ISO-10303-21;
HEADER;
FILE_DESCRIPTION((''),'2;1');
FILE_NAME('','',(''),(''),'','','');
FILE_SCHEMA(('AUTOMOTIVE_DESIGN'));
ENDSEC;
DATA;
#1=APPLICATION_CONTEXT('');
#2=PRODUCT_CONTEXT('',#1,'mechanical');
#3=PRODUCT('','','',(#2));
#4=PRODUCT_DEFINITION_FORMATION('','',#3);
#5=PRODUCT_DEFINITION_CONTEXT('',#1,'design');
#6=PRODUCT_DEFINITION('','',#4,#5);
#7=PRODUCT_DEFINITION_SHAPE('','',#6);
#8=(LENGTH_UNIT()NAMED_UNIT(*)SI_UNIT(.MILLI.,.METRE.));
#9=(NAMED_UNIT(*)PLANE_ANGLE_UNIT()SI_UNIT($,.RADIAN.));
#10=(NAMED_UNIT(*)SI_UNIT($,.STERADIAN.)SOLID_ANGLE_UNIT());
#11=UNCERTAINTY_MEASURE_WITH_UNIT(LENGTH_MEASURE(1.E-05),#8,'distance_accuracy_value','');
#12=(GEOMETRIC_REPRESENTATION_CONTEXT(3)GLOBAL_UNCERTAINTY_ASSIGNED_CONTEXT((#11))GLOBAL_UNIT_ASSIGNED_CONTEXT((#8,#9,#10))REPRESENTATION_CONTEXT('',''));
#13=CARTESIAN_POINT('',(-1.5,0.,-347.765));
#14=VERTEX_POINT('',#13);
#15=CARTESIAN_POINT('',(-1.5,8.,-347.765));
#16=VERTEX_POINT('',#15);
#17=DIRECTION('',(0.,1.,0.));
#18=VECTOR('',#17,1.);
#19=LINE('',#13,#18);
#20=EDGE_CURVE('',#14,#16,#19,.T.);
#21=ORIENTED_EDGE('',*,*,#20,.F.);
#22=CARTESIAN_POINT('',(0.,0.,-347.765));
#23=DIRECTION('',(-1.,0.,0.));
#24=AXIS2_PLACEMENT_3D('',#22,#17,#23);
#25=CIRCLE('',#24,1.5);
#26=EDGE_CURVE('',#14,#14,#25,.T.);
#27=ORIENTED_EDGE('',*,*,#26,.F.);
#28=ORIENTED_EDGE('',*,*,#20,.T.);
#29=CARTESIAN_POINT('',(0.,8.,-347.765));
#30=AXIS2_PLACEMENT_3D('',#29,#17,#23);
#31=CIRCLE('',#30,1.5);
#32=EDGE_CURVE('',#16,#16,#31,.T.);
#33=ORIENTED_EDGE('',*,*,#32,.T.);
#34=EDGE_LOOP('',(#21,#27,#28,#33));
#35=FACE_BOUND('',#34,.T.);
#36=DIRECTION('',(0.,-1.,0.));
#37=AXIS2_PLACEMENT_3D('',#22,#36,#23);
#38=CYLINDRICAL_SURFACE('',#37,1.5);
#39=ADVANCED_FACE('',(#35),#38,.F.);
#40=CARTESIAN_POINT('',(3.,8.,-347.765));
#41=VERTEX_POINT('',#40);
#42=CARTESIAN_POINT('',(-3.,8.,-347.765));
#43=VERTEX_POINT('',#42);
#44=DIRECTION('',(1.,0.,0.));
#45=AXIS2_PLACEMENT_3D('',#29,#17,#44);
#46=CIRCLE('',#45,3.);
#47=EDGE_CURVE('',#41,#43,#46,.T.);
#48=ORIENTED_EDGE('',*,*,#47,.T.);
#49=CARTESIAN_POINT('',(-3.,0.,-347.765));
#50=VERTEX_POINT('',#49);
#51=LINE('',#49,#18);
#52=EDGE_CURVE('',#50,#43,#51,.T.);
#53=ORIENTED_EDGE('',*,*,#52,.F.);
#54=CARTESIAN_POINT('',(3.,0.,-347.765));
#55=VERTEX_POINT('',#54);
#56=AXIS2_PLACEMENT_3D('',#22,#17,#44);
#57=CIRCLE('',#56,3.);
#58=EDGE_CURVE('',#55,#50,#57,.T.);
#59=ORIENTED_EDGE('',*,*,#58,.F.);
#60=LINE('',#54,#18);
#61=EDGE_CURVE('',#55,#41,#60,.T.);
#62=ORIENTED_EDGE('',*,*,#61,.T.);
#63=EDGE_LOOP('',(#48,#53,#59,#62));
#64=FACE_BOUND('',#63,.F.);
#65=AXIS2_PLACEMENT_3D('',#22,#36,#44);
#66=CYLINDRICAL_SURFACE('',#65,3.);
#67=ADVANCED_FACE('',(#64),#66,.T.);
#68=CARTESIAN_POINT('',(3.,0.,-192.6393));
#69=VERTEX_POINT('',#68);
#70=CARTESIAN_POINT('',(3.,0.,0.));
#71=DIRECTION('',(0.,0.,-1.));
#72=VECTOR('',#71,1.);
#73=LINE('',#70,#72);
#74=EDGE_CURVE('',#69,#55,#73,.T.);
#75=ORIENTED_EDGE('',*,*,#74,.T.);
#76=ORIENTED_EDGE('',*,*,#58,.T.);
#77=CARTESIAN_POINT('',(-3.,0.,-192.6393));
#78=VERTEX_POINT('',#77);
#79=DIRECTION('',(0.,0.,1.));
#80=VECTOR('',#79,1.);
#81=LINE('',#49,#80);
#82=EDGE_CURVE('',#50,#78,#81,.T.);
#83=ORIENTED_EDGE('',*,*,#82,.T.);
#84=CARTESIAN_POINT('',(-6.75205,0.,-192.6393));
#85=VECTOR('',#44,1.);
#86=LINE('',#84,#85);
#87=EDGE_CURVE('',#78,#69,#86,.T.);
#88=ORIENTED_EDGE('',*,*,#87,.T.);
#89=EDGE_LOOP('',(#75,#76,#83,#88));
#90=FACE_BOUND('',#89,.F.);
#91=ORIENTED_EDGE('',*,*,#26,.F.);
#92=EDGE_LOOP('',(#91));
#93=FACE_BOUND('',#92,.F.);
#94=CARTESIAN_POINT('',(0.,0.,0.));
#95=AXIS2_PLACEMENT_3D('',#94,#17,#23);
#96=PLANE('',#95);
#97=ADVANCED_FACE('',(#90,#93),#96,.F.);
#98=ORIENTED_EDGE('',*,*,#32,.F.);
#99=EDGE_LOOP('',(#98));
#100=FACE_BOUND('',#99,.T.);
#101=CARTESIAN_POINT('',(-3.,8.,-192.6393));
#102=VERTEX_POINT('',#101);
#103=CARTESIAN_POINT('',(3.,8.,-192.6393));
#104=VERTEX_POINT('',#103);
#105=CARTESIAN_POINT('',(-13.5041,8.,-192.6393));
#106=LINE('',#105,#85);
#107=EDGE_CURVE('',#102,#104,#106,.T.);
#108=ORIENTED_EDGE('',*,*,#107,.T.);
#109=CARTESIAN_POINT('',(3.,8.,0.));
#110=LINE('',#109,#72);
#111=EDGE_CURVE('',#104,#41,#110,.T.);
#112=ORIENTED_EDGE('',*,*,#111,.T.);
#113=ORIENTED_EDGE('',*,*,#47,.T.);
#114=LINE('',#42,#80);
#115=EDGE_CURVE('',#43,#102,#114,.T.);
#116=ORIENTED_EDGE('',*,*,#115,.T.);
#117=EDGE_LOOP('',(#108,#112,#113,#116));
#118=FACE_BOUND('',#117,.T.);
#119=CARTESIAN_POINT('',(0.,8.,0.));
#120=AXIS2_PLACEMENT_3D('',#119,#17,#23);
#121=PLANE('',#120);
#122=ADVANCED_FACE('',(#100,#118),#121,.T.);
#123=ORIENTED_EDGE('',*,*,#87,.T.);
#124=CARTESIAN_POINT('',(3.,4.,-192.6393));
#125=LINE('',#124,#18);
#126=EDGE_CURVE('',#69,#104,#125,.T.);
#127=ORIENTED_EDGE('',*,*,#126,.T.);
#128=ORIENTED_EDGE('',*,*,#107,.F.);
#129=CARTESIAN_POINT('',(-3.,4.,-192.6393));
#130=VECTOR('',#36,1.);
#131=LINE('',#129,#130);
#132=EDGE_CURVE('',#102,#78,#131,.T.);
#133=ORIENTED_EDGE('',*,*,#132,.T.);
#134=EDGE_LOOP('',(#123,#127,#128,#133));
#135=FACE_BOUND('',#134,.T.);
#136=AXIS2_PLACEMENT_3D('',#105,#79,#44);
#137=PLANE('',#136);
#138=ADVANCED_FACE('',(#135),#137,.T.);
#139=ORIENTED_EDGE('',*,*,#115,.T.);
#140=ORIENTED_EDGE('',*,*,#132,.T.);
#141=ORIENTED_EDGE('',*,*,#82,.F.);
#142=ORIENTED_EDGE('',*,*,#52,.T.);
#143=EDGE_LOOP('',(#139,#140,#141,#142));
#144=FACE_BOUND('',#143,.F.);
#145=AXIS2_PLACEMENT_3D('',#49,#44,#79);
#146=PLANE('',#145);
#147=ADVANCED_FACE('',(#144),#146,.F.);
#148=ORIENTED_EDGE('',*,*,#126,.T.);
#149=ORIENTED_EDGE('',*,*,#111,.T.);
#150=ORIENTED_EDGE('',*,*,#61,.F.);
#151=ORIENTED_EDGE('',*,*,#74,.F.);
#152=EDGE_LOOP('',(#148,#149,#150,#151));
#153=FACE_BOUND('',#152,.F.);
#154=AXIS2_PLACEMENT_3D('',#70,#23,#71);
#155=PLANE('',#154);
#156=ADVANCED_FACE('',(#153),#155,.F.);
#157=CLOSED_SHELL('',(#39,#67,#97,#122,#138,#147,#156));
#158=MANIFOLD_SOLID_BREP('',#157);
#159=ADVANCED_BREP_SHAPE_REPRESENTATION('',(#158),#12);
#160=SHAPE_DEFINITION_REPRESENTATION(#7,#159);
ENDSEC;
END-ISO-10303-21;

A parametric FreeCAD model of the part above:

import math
import FreeCAD as App
import Part
import Sketcher

V = App.Vector
Q = App.Units.Quantity

doc = App.newDocument("Part")
body = doc.addObject("PartDesign::Body", "Body")

# Sketch on XZ plane
sketch1 = body.newObject("Sketcher::SketchObject", "Sketch")
sketch1.AttachmentSupport = (doc.getObject("XZ_Plane"), [""])
sketch1.MapMode = "FlatFace"
sketch1.addGeometry([
    Part.ArcOfCircle(Part.Circle(V(0, 0, 0), V(0, 0, 1), 3), math.radians(0), math.radians(180)),  # 0
    Part.LineSegment(V(3, 0, 0), V(3, -347.8, 0)),  # 1
    Part.ArcOfCircle(Part.Circle(V(0, -347.8, 0), V(0, 0, 1), 3), math.radians(180), math.radians(360)),  # 2
    Part.LineSegment(V(-3, -347.8, 0), V(-3, 0, 0)),  # 3
    Part.Circle(V(0, -347.8, 0), V(0, 0, 1), 1.5),  # 4
    Part.Circle(V(0, -131.2, 0), V(0, 0, 1), 1.5),  # 5
    Part.Circle(V(0, -37.9, 0), V(0, 0, 1), 1.5),  # 6
    Part.Circle(V(0, 0, 0), V(0, 0, 1), 1.5),  # 7
], False)
sketch1.addConstraint([
    Sketcher.Constraint("Tangent", 0, 1, 1, 1),
    Sketcher.Constraint("Tangent", 1, 2, 2, 2),
    Sketcher.Constraint("Tangent", 2, 1, 3, 1),
    Sketcher.Constraint("Tangent", 3, 2, 0, 2),
    Sketcher.Constraint("Vertical", 1),
    Sketcher.Constraint("Vertical", 3),
    Sketcher.Constraint("Coincident", 0, 3, -1, 1),
    Sketcher.Constraint("Coincident", 7, 3, -1, 1),
    Sketcher.Constraint("Coincident", 4, 3, 2, 3),
    Sketcher.Constraint("Equal", 4, 5),
    Sketcher.Constraint("Equal", 5, 6),
    Sketcher.Constraint("Equal", 6, 7),
    Sketcher.Constraint("PointOnObject", 5, 3, -2),
    Sketcher.Constraint("PointOnObject", 6, 3, -2),
    Sketcher.Constraint("Diameter", 4, Q("3 mm")),
    Sketcher.Constraint("Radius", 0, Q("3 mm")),
    Sketcher.Constraint("DistanceY", 1, 2, 1, 1, Q("347.765 mm")),
    Sketcher.Constraint("DistanceY", 5, 3, -1, 1, Q("131.233 mm")),
    Sketcher.Constraint("DistanceY", 6, 3, -1, 1, Q("37.934 mm")),
])
pad1 = body.newObject("PartDesign::Pad", "Pad")
pad1.Profile = sketch1
pad1.Length = 8
pad1.Reversed = True

# Sketch on XZ plane
sketch2 = body.newObject("Sketcher::SketchObject", "Sketch001")
sketch2.AttachmentSupport = (doc.getObject("XZ_Plane"), [""])
sketch2.MapMode = "FlatFace"
sketch2.AttachmentOffset = App.Placement(V(0, 0, -8), App.Rotation())
sketch2.addGeometry([
    Part.LineSegment(V(33, -193, 0), V(-14, -193, 0)),
    Part.LineSegment(V(-14, -193, 0), V(-14, 23, 0)),
    Part.LineSegment(V(-14, 23, 0), V(33, 23, 0)),
    Part.LineSegment(V(33, 23, 0), V(33, -193, 0)),
], False)
sketch2.addConstraint([
    Sketcher.Constraint("Coincident", 0, 2, 1, 1),
    Sketcher.Constraint("Coincident", 1, 2, 2, 1),
    Sketcher.Constraint("Coincident", 2, 2, 3, 1),
    Sketcher.Constraint("Coincident", 3, 2, 0, 1),
    Sketcher.Constraint("Horizontal", 0),
    Sketcher.Constraint("Vertical", 1),
    Sketcher.Constraint("Horizontal", 2),
    Sketcher.Constraint("Vertical", 3),
    Sketcher.Constraint("DistanceX", 0, 2, 0, 1, Q("46.794 mm")),
    Sketcher.Constraint("DistanceY", 1, 1, 1, 2, Q("215.9718 mm")),
    Sketcher.Constraint("DistanceX", 0, 2, -1, 1, Q("13.504 mm")),
    Sketcher.Constraint("DistanceY", 0, 2, -1, 1, Q("192.6393 mm")),
])
pocket1 = body.newObject("PartDesign::Pocket", "Pocket")
pocket1.Profile = sketch2
pocket1.Length = 10
pocket1.Reversed = True

doc.recompute()
